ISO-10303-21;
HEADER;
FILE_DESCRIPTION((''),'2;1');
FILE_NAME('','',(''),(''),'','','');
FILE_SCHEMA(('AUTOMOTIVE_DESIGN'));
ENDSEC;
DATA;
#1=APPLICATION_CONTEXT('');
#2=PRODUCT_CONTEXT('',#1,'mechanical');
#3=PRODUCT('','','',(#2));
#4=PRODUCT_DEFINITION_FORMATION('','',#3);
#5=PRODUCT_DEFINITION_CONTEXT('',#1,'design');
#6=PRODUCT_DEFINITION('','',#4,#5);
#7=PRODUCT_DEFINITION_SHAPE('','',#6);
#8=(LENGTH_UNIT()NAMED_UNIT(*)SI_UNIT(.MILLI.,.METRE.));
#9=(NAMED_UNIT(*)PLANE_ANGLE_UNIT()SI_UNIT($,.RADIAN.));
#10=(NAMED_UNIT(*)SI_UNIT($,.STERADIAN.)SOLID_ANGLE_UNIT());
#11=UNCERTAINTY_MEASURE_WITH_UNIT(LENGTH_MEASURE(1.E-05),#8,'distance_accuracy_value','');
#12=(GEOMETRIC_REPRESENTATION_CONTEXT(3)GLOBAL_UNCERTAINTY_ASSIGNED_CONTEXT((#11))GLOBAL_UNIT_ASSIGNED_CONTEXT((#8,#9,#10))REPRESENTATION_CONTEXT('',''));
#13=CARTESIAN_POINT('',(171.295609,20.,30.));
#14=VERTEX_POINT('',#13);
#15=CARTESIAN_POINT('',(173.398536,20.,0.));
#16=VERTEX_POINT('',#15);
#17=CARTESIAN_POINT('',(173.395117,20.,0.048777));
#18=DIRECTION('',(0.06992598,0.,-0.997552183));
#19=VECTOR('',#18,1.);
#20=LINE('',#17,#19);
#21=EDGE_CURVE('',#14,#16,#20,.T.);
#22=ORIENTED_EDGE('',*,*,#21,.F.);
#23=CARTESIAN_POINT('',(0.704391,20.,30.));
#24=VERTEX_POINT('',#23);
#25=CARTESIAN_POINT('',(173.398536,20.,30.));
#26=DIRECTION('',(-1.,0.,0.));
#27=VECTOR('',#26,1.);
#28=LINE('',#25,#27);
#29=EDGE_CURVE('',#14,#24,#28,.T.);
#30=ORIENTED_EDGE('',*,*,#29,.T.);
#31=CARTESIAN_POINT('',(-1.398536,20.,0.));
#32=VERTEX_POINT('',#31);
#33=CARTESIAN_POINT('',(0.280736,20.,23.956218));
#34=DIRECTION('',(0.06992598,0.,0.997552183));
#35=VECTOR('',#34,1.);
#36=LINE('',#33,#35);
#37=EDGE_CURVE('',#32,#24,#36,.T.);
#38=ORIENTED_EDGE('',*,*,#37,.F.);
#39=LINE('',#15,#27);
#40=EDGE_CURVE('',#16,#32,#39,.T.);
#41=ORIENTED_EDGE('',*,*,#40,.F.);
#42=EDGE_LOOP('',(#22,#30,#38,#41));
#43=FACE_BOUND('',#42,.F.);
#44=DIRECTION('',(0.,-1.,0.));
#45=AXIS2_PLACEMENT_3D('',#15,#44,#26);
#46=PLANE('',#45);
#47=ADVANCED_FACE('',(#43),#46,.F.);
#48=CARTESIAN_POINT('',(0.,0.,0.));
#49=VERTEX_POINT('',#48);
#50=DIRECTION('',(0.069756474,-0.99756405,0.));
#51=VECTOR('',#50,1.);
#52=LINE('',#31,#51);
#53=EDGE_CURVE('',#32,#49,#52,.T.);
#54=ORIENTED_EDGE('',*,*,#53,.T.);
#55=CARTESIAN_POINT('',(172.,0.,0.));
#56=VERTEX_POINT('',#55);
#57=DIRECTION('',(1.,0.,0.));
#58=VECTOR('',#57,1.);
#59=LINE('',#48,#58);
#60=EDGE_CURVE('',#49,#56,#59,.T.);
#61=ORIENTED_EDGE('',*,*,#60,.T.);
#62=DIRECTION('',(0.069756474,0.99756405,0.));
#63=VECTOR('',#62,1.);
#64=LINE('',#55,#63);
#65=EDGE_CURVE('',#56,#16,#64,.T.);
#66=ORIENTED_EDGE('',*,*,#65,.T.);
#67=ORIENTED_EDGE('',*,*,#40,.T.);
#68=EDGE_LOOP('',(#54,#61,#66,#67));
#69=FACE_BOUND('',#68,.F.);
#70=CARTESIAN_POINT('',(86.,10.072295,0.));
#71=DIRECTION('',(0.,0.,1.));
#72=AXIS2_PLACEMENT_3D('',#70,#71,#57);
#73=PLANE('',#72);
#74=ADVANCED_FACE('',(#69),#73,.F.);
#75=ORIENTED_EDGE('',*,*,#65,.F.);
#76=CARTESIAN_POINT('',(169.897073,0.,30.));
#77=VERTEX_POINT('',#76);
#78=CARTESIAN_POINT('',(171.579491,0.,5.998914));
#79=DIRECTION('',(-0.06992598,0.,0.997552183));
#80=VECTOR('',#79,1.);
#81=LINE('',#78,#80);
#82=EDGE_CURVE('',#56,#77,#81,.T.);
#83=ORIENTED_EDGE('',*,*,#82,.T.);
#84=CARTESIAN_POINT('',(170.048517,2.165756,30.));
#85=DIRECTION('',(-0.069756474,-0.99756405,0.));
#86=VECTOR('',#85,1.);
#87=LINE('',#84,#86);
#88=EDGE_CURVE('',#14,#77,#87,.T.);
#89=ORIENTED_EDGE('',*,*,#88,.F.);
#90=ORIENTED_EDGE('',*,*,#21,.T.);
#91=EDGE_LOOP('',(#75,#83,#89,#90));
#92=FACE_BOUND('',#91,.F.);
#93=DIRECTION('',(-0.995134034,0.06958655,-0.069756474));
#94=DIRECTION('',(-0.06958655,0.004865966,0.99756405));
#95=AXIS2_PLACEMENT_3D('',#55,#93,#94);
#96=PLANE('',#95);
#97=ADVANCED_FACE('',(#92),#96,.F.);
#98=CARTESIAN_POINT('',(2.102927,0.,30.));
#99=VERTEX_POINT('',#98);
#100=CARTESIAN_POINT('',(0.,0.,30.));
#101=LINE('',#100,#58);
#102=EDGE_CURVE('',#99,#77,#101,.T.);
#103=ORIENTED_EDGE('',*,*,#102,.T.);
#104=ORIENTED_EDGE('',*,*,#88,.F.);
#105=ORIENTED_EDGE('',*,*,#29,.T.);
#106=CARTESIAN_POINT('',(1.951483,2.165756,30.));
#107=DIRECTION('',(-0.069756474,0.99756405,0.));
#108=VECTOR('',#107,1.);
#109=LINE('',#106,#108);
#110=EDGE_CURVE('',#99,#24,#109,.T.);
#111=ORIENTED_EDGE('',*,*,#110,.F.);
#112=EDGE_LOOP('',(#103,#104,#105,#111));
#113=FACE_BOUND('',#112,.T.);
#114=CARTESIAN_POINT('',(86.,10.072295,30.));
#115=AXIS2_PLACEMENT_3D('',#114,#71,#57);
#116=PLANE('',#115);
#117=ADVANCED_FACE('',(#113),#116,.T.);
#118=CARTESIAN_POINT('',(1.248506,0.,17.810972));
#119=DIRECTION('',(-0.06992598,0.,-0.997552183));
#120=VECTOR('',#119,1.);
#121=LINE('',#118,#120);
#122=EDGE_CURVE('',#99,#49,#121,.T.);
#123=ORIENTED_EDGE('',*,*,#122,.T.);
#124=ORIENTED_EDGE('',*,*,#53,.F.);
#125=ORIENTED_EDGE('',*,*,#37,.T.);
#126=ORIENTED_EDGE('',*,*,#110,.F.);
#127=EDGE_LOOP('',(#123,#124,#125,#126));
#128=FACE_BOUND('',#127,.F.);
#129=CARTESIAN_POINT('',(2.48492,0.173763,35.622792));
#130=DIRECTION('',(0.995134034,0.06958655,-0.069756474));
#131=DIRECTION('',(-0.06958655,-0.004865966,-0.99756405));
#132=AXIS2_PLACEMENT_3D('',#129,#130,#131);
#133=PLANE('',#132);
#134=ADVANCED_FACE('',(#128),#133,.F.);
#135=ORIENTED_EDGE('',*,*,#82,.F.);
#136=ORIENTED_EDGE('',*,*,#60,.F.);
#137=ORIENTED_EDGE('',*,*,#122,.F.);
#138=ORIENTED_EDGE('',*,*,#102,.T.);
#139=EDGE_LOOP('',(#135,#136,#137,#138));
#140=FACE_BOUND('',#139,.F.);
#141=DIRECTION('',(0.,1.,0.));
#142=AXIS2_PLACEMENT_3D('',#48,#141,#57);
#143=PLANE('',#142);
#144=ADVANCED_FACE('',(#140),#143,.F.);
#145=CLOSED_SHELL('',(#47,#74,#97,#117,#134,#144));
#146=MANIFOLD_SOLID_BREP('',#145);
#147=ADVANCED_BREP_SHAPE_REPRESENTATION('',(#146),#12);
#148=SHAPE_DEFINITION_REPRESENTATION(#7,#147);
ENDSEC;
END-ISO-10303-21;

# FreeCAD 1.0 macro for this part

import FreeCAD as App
import Part
import Sketcher
from FreeCAD import Vector
Q = App.Units.Quantity

doc = App.newDocument("Part")
params = doc.addObject("Spreadsheet::Sheet", "Params")
for row, (alias, value) in enumerate([
    ("sketch1_width", "172 mm"),
    ("pad1_length", "30 mm"),
    ("pocket1_length", "55.4 mm"),
    ("pocket2_length", "100.4 mm"),
], start=1):
    params.set(f"A{row}", alias)
    params.set(f"B{row}", "=" + value)
    params.setAlias(f"B{row}", alias)

body = doc.addObject("PartDesign::Body", "Body")

sketch1 = body.newObject("Sketcher::SketchObject", "Sketch")
sketch1.AttachmentSupport = (doc.getObject("XY_Plane"), [""])
sketch1.MapMode = "FlatFace"
sketch1.addGeometry(Part.LineSegment(Vector(-1.398536, 20, 0), Vector(0, 0, 0)), False)
sketch1.addGeometry(Part.LineSegment(Vector(0, 0, 0), Vector(172, 0, 0)), False)
sketch1.addGeometry(Part.LineSegment(Vector(172, 0, 0), Vector(173.398536, 20, 0)), False)
sketch1.addGeometry(Part.LineSegment(Vector(173.398536, 20, 0), Vector(-1.398536, 20, 0)), False)
sketch1.addConstraint(Sketcher.Constraint("Coincident", 0, 2, 1, 1))
sketch1.addConstraint(Sketcher.Constraint("Coincident", 1, 2, 2, 1))
sketch1.addConstraint(Sketcher.Constraint("Coincident", 2, 2, 3, 1))
sketch1.addConstraint(Sketcher.Constraint("Coincident", 3, 2, 0, 1))
sketch1.addConstraint(Sketcher.Constraint("Horizontal", 1))
sketch1.addConstraint(Sketcher.Constraint("Horizontal", 3))
sketch1.addConstraint(Sketcher.Constraint("Coincident", 0, 2, -1, 1))
sketch1.addConstraint(Sketcher.Constraint("Equal", 0, 2))
sketch1.addConstraint(Sketcher.Constraint("DistanceX", 1, 1, 1, 2, Q("172 mm")))
sketch1.addConstraint(Sketcher.Constraint("Angle", 0, Q("-86 deg")))
sketch1.addConstraint(Sketcher.Constraint("DistanceY", -1, 1, 2, 2, Q("20 mm")))
sketch1.setExpression("Constraints[8]", "Params.sketch1_width")
pad1 = body.newObject("PartDesign::Pad", "Pad")
pad1.Profile = sketch1
pad1.setExpression("Length", "Params.pad1_length")

sketch2 = body.newObject("Sketcher::SketchObject", "Sketch001")
sketch2.Placement = App.Placement(Vector(0, 0, 0), App.Rotation(Vector(-0.99756405, -0.069756474, 0), Vector(0, 0, 1), Vector(-0.069756474, 0.99756405, 0), "ZXY"))
sketch2.addGeometry(Part.LineSegment(Vector(-2.490988, 35.622792, 0), Vector(0, 0, 0)), False)
sketch2.addGeometry(Part.LineSegment(Vector(0, 0, 0), Vector(0, 35.622792, 0)), False)
sketch2.addGeometry(Part.LineSegment(Vector(0, 35.622792, 0), Vector(-2.490988, 35.622792, 0)), False)
sketch2.addConstraint(Sketcher.Constraint("Coincident", 0, 2, 1, 1))
sketch2.addConstraint(Sketcher.Constraint("Coincident", 1, 2, 2, 1))
sketch2.addConstraint(Sketcher.Constraint("Coincident", 2, 2, 0, 1))
sketch2.addConstraint(Sketcher.Constraint("Vertical", 1))
sketch2.addConstraint(Sketcher.Constraint("Horizontal", 2))
sketch2.addConstraint(Sketcher.Constraint("Coincident", 0, 2, -1, 1))
sketch2.addConstraint(Sketcher.Constraint("Angle", 0, Q("-86 deg")))
sketch2.addConstraint(Sketcher.Constraint("DistanceX", 2, 2, 2, 1, Q("2.490988 mm")))
pocket1 = body.newObject("PartDesign::Pocket", "Pocket")
pocket1.Profile = sketch2
pocket1.setExpression("Length", "Params.pocket1_length")
pocket1.Midplane = True

sketch3 = body.newObject("Sketcher::SketchObject", "Sketch002")
sketch3.Placement = App.Placement(Vector(0.836946, 11.968887, 0), App.Rotation(Vector(-0.99756405, 0.069756474, 0), Vector(0, 0, 1), Vector(0.069756474, 0.99756405, 0), "ZXY"))
sketch3.addGeometry(Part.LineSegment(Vector(-171.581017, 89.973058, 0), Vector(-171.581017, 0, 0)), False)
sketch3.addGeometry(Part.LineSegment(Vector(-171.581017, 0, 0), Vector(-165.320102, 89.535252, 0)), False)
sketch3.addGeometry(Part.LineSegment(Vector(-165.320102, 89.535252, 0), Vector(-171.581017, 89.973058, 0)), False)
sketch3.addConstraint(Sketcher.Constraint("Coincident", 0, 2, 1, 1))
sketch3.addConstraint(Sketcher.Constraint("Coincident", 1, 2, 2, 1))
sketch3.addConstraint(Sketcher.Constraint("Coincident", 2, 2, 0, 1))
sketch3.addConstraint(Sketcher.Constraint("Vertical", 0))
sketch3.addConstraint(Sketcher.Constraint("PointOnObject", 0, 2, -1))
sketch3.addConstraint(Sketcher.Constraint("Perpendicular", 1, 2))
sketch3.addConstraint(Sketcher.Constraint("Angle", 1, Q("86 deg")))
sketch3.addConstraint(Sketcher.Constraint("DistanceX", 1, 2, -1, 1, Q("165.320102 mm")))
sketch3.addConstraint(Sketcher.Constraint("DistanceY", 0, 2, 0, 1, Q("89.973058 mm")))
pocket2 = body.newObject("PartDesign::Pocket", "Pocket001")
pocket2.Profile = sketch3
pocket2.setExpression("Length", "Params.pocket2_length")
pocket2.Midplane = True

doc.recompute()
